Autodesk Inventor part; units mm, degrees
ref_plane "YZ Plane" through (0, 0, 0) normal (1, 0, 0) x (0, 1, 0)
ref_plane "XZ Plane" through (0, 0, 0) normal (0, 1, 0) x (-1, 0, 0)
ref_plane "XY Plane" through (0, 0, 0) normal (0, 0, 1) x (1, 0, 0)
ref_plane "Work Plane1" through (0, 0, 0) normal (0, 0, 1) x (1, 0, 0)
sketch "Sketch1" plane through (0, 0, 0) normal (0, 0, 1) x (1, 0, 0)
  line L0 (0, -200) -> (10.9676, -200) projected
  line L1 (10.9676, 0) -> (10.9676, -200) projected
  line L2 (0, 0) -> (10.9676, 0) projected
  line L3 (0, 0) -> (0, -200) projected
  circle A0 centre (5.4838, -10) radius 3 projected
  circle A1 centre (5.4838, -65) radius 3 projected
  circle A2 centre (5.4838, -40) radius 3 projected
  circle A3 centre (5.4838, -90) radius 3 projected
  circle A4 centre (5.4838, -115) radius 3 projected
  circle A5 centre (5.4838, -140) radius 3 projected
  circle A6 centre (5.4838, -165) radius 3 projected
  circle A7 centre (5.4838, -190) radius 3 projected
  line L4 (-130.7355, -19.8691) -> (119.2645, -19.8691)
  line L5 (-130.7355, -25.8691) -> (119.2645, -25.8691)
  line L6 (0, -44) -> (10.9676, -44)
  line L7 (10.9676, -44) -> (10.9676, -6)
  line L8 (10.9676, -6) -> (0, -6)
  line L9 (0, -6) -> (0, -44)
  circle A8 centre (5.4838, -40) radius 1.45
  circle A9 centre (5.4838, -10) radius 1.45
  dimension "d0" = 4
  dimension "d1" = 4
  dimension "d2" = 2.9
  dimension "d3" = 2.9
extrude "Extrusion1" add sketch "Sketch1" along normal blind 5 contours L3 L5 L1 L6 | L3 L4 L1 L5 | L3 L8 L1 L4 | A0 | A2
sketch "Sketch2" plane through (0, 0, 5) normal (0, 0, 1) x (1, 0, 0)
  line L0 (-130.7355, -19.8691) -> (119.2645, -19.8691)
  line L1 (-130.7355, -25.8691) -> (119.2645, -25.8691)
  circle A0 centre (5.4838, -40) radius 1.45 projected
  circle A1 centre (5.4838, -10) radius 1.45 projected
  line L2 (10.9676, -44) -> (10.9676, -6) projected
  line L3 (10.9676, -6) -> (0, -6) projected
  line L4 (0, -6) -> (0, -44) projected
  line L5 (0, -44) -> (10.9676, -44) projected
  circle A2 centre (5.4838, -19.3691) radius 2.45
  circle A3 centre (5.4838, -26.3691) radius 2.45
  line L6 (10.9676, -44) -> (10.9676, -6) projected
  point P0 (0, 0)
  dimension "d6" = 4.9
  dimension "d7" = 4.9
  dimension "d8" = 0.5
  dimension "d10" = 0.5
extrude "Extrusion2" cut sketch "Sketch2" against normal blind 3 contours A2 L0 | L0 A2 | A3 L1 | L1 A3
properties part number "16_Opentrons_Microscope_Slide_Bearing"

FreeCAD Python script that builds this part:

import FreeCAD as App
import Part
import Sketcher
from FreeCAD import Vector


def add_polygon(sketch, points):
    """Adds a closed chain of lines whose ends are joined by coincident constraints."""
    first, n = sketch.GeometryCount, len(points)
    for a, b in zip(points, points[1:] + points[:1]):
        sketch.addGeometry(Part.LineSegment(App.Vector(*a, 0), App.Vector(*b, 0)), False)
    for i in range(n):
        sketch.addConstraint(Sketcher.Constraint("Coincident", first + i, 2, first + (i + 1) % n, 1))

doc = App.newDocument("Part")
body = doc.addObject("PartDesign::Body", "Body")

sketch1 = body.newObject("Sketcher::SketchObject", "Sketch")
sketch1.AttachmentSupport = (doc.getObject("XY_Plane"), [""])
sketch1.MapMode = "FlatFace"
add_polygon(sketch1, [(0, -44), (10.9676, -44), (10.9676, -6), (0, -6)])
sketch1.addGeometry(Part.Circle(Vector(5.4838, -40, 0), Vector(0, 0, 1), 1.45), False)
sketch1.addGeometry(Part.Circle(Vector(5.4838, -10, 0), Vector(0, 0, 1), 1.45), False)
sketch1.addConstraint([
    Sketcher.Constraint("Horizontal", 0),
    Sketcher.Constraint("Vertical", 1),
    Sketcher.Constraint("Horizontal", 2),
    Sketcher.Constraint("Vertical", 3),
    Sketcher.Constraint("Equal", 4, 5),
    Sketcher.Constraint("PointOnObject", 2, 2, -2),
    Sketcher.Constraint("Vertical", 4, 3, 5, 3),
    Sketcher.Constraint("Diameter", 4, 2.9),
    Sketcher.Constraint("DistanceY", 0, 2, 4, 3, 4.0),
    Sketcher.Constraint("DistanceY", 5, 3, 1, 2, 4.0),
    Sketcher.Constraint("DistanceY", 1, 1, 1, 2, 38.0),
    Sketcher.Constraint("DistanceY", 4, 3, -1, 1, 40.0),
    Sketcher.Constraint("DistanceX", 0, 1, 0, 2, 10.9676),
    Sketcher.Constraint("DistanceX", -1, 1, 4, 3, 5.4838),
])
pad1 = body.newObject("PartDesign::Pad", "Pad")
pad1.Profile = sketch1
pad1.Length = 5

sketch2 = body.newObject("Sketcher::SketchObject", "Sketch001")
sketch2.AttachmentSupport = (doc.getObject("XY_Plane"), [""])
sketch2.MapMode = "FlatFace"
sketch2.AttachmentOffset = App.Placement(Vector(0, 0, 5), App.Rotation())
sketch2.addGeometry([
    Part.Circle(Vector(5.4838, -19.3691, 0), Vector(0, 0, 1), 2.45),
    Part.Circle(Vector(5.4838, -26.3691, 0), Vector(0, 0, 1), 2.45),
], False)
sketch2.addConstraint([
    Sketcher.Constraint("Equal", 0, 1),
    Sketcher.Constraint("Vertical", 0, 3, 1, 3),
    Sketcher.Constraint("Diameter", 0, 4.9),
    Sketcher.Constraint("DistanceY", 1, 3, 0, 3, 7.0),
    Sketcher.Constraint("DistanceY", 0, 3, -1, 1, 19.369),
    Sketcher.Constraint("DistanceX", -1, 1, 0, 3, 5.4838),
])
pocket1 = body.newObject("PartDesign::Pocket", "Pocket")
pocket1.Profile = sketch2
pocket1.Length = 3

doc.recompute()
